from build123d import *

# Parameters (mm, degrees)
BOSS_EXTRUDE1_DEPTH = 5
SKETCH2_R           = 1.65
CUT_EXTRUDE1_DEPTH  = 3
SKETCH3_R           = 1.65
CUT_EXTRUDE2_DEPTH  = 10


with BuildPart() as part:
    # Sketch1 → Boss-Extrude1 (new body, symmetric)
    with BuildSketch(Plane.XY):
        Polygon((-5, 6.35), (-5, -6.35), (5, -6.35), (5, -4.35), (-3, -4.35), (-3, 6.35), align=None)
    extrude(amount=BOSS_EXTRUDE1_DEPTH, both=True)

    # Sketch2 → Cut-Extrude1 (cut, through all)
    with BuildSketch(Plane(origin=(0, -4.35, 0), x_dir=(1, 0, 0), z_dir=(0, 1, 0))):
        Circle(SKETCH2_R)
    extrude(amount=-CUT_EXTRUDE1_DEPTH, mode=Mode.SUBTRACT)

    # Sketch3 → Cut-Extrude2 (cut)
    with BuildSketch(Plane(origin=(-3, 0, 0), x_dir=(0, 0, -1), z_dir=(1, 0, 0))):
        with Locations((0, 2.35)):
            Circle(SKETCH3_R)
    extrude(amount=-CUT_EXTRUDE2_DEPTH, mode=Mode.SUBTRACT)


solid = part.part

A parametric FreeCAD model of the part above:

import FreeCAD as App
import Part
import Sketcher
Q = App.Units.Quantity


def add_polygon(sketch, points):
    """Adds a closed chain of lines whose ends are joined by coincident constraints."""
    first, n = sketch.GeometryCount, len(points)
    for a, b in zip(points, points[1:] + points[:1]):
        sketch.addGeometry(Part.LineSegment(App.Vector(*a, 0), App.Vector(*b, 0)), False)
    for i in range(n):
        sketch.addConstraint(Sketcher.Constraint("Coincident", first + i, 2, first + (i + 1) % n, 1))

doc = App.newDocument("Part")
body = doc.addObject("PartDesign::Body", "Body")

# Sketch on XY plane
sketch1 = body.newObject("Sketcher::SketchObject", "Sketch")
sketch1.AttachmentSupport = (doc.getObject("XY_Plane"), [""])
sketch1.MapMode = "FlatFace"
add_polygon(sketch1, [(-5, 6.35), (-5, -6.35), (5, -6.35), (5, -4.35), (-3, -4.35), (-3, 6.35)])  # lines 0-5
sketch1.addConstraint(Sketcher.Constraint("Vertical", 0))
sketch1.addConstraint(Sketcher.Constraint("Horizontal", 1))
sketch1.addConstraint(Sketcher.Constraint("Vertical", 2))
sketch1.addConstraint(Sketcher.Constraint("Horizontal", 3))
sketch1.addConstraint(Sketcher.Constraint("Vertical", 4))
sketch1.addConstraint(Sketcher.Constraint("Horizontal", 5))
sketch1.addConstraint(Sketcher.Constraint("Symmetric", 1, 2, 5, 2, -1, 1))
sketch1.addConstraint(Sketcher.Constraint("Equal", 5, 2))
sketch1.addConstraint(Sketcher.Constraint("DistanceX", 1, 1, 1, 2, Q("10 mm")))
sketch1.addConstraint(Sketcher.Constraint("DistanceX", 3, 2, 3, 1, Q("8 mm")))
sketch1.addConstraint(Sketcher.Constraint("DistanceY", 0, 2, 0, 1, Q("12.7 mm")))
pad1 = body.newObject("PartDesign::Pad", "Pad")
pad1.Profile = sketch1
pad1.Length = 10
pad1.Midplane = True

# Sketch on XZ plane
sketch2 = body.newObject("Sketcher::SketchObject", "Sketch001")
sketch2.AttachmentSupport = (doc.getObject("XZ_Plane"), [""])
sketch2.MapMode = "FlatFace"
sketch2.AttachmentOffset = App.Placement(App.Vector(0, 0, 4.35), App.Rotation())
sketch2.addGeometry(Part.Circle(App.Vector(0, 0, 0), App.Vector(0, 0, 1), 1.65), False)
sketch2.addConstraint(Sketcher.Constraint("Coincident", 0, 3, -1, 1))
sketch2.addConstraint(Sketcher.Constraint("Diameter", 0, Q("3.3 mm")))
pocket1 = body.newObject("PartDesign::Pocket", "Pocket")
pocket1.Profile = sketch2
pocket1.Type = "ThroughAll"
pocket1.Reversed = True

# Sketch on YZ plane
sketch3 = body.newObject("Sketcher::SketchObject", "Sketch002")
sketch3.AttachmentSupport = (doc.getObject("YZ_Plane"), [""])
sketch3.MapMode = "FlatFace"
sketch3.AttachmentOffset = App.Placement(App.Vector(0, 0, -3), App.Rotation())
sketch3.addGeometry(Part.Circle(App.Vector(2.35, 0, 0), App.Vector(0, 0, 1), 1.65), False)
sketch3.addConstraint(Sketcher.Constraint("PointOnObject", 0, 3, -1))
sketch3.addConstraint(Sketcher.Constraint("Diameter", 0, Q("3.3 mm")))
sketch3.addConstraint(Sketcher.Constraint("DistanceX", -1, 1, 0, 3, Q("2.35 mm")))
pocket2 = body.newObject("PartDesign::Pocket", "Pocket001")
pocket2.Profile = sketch3
pocket2.Length = 10

doc.recompute()
